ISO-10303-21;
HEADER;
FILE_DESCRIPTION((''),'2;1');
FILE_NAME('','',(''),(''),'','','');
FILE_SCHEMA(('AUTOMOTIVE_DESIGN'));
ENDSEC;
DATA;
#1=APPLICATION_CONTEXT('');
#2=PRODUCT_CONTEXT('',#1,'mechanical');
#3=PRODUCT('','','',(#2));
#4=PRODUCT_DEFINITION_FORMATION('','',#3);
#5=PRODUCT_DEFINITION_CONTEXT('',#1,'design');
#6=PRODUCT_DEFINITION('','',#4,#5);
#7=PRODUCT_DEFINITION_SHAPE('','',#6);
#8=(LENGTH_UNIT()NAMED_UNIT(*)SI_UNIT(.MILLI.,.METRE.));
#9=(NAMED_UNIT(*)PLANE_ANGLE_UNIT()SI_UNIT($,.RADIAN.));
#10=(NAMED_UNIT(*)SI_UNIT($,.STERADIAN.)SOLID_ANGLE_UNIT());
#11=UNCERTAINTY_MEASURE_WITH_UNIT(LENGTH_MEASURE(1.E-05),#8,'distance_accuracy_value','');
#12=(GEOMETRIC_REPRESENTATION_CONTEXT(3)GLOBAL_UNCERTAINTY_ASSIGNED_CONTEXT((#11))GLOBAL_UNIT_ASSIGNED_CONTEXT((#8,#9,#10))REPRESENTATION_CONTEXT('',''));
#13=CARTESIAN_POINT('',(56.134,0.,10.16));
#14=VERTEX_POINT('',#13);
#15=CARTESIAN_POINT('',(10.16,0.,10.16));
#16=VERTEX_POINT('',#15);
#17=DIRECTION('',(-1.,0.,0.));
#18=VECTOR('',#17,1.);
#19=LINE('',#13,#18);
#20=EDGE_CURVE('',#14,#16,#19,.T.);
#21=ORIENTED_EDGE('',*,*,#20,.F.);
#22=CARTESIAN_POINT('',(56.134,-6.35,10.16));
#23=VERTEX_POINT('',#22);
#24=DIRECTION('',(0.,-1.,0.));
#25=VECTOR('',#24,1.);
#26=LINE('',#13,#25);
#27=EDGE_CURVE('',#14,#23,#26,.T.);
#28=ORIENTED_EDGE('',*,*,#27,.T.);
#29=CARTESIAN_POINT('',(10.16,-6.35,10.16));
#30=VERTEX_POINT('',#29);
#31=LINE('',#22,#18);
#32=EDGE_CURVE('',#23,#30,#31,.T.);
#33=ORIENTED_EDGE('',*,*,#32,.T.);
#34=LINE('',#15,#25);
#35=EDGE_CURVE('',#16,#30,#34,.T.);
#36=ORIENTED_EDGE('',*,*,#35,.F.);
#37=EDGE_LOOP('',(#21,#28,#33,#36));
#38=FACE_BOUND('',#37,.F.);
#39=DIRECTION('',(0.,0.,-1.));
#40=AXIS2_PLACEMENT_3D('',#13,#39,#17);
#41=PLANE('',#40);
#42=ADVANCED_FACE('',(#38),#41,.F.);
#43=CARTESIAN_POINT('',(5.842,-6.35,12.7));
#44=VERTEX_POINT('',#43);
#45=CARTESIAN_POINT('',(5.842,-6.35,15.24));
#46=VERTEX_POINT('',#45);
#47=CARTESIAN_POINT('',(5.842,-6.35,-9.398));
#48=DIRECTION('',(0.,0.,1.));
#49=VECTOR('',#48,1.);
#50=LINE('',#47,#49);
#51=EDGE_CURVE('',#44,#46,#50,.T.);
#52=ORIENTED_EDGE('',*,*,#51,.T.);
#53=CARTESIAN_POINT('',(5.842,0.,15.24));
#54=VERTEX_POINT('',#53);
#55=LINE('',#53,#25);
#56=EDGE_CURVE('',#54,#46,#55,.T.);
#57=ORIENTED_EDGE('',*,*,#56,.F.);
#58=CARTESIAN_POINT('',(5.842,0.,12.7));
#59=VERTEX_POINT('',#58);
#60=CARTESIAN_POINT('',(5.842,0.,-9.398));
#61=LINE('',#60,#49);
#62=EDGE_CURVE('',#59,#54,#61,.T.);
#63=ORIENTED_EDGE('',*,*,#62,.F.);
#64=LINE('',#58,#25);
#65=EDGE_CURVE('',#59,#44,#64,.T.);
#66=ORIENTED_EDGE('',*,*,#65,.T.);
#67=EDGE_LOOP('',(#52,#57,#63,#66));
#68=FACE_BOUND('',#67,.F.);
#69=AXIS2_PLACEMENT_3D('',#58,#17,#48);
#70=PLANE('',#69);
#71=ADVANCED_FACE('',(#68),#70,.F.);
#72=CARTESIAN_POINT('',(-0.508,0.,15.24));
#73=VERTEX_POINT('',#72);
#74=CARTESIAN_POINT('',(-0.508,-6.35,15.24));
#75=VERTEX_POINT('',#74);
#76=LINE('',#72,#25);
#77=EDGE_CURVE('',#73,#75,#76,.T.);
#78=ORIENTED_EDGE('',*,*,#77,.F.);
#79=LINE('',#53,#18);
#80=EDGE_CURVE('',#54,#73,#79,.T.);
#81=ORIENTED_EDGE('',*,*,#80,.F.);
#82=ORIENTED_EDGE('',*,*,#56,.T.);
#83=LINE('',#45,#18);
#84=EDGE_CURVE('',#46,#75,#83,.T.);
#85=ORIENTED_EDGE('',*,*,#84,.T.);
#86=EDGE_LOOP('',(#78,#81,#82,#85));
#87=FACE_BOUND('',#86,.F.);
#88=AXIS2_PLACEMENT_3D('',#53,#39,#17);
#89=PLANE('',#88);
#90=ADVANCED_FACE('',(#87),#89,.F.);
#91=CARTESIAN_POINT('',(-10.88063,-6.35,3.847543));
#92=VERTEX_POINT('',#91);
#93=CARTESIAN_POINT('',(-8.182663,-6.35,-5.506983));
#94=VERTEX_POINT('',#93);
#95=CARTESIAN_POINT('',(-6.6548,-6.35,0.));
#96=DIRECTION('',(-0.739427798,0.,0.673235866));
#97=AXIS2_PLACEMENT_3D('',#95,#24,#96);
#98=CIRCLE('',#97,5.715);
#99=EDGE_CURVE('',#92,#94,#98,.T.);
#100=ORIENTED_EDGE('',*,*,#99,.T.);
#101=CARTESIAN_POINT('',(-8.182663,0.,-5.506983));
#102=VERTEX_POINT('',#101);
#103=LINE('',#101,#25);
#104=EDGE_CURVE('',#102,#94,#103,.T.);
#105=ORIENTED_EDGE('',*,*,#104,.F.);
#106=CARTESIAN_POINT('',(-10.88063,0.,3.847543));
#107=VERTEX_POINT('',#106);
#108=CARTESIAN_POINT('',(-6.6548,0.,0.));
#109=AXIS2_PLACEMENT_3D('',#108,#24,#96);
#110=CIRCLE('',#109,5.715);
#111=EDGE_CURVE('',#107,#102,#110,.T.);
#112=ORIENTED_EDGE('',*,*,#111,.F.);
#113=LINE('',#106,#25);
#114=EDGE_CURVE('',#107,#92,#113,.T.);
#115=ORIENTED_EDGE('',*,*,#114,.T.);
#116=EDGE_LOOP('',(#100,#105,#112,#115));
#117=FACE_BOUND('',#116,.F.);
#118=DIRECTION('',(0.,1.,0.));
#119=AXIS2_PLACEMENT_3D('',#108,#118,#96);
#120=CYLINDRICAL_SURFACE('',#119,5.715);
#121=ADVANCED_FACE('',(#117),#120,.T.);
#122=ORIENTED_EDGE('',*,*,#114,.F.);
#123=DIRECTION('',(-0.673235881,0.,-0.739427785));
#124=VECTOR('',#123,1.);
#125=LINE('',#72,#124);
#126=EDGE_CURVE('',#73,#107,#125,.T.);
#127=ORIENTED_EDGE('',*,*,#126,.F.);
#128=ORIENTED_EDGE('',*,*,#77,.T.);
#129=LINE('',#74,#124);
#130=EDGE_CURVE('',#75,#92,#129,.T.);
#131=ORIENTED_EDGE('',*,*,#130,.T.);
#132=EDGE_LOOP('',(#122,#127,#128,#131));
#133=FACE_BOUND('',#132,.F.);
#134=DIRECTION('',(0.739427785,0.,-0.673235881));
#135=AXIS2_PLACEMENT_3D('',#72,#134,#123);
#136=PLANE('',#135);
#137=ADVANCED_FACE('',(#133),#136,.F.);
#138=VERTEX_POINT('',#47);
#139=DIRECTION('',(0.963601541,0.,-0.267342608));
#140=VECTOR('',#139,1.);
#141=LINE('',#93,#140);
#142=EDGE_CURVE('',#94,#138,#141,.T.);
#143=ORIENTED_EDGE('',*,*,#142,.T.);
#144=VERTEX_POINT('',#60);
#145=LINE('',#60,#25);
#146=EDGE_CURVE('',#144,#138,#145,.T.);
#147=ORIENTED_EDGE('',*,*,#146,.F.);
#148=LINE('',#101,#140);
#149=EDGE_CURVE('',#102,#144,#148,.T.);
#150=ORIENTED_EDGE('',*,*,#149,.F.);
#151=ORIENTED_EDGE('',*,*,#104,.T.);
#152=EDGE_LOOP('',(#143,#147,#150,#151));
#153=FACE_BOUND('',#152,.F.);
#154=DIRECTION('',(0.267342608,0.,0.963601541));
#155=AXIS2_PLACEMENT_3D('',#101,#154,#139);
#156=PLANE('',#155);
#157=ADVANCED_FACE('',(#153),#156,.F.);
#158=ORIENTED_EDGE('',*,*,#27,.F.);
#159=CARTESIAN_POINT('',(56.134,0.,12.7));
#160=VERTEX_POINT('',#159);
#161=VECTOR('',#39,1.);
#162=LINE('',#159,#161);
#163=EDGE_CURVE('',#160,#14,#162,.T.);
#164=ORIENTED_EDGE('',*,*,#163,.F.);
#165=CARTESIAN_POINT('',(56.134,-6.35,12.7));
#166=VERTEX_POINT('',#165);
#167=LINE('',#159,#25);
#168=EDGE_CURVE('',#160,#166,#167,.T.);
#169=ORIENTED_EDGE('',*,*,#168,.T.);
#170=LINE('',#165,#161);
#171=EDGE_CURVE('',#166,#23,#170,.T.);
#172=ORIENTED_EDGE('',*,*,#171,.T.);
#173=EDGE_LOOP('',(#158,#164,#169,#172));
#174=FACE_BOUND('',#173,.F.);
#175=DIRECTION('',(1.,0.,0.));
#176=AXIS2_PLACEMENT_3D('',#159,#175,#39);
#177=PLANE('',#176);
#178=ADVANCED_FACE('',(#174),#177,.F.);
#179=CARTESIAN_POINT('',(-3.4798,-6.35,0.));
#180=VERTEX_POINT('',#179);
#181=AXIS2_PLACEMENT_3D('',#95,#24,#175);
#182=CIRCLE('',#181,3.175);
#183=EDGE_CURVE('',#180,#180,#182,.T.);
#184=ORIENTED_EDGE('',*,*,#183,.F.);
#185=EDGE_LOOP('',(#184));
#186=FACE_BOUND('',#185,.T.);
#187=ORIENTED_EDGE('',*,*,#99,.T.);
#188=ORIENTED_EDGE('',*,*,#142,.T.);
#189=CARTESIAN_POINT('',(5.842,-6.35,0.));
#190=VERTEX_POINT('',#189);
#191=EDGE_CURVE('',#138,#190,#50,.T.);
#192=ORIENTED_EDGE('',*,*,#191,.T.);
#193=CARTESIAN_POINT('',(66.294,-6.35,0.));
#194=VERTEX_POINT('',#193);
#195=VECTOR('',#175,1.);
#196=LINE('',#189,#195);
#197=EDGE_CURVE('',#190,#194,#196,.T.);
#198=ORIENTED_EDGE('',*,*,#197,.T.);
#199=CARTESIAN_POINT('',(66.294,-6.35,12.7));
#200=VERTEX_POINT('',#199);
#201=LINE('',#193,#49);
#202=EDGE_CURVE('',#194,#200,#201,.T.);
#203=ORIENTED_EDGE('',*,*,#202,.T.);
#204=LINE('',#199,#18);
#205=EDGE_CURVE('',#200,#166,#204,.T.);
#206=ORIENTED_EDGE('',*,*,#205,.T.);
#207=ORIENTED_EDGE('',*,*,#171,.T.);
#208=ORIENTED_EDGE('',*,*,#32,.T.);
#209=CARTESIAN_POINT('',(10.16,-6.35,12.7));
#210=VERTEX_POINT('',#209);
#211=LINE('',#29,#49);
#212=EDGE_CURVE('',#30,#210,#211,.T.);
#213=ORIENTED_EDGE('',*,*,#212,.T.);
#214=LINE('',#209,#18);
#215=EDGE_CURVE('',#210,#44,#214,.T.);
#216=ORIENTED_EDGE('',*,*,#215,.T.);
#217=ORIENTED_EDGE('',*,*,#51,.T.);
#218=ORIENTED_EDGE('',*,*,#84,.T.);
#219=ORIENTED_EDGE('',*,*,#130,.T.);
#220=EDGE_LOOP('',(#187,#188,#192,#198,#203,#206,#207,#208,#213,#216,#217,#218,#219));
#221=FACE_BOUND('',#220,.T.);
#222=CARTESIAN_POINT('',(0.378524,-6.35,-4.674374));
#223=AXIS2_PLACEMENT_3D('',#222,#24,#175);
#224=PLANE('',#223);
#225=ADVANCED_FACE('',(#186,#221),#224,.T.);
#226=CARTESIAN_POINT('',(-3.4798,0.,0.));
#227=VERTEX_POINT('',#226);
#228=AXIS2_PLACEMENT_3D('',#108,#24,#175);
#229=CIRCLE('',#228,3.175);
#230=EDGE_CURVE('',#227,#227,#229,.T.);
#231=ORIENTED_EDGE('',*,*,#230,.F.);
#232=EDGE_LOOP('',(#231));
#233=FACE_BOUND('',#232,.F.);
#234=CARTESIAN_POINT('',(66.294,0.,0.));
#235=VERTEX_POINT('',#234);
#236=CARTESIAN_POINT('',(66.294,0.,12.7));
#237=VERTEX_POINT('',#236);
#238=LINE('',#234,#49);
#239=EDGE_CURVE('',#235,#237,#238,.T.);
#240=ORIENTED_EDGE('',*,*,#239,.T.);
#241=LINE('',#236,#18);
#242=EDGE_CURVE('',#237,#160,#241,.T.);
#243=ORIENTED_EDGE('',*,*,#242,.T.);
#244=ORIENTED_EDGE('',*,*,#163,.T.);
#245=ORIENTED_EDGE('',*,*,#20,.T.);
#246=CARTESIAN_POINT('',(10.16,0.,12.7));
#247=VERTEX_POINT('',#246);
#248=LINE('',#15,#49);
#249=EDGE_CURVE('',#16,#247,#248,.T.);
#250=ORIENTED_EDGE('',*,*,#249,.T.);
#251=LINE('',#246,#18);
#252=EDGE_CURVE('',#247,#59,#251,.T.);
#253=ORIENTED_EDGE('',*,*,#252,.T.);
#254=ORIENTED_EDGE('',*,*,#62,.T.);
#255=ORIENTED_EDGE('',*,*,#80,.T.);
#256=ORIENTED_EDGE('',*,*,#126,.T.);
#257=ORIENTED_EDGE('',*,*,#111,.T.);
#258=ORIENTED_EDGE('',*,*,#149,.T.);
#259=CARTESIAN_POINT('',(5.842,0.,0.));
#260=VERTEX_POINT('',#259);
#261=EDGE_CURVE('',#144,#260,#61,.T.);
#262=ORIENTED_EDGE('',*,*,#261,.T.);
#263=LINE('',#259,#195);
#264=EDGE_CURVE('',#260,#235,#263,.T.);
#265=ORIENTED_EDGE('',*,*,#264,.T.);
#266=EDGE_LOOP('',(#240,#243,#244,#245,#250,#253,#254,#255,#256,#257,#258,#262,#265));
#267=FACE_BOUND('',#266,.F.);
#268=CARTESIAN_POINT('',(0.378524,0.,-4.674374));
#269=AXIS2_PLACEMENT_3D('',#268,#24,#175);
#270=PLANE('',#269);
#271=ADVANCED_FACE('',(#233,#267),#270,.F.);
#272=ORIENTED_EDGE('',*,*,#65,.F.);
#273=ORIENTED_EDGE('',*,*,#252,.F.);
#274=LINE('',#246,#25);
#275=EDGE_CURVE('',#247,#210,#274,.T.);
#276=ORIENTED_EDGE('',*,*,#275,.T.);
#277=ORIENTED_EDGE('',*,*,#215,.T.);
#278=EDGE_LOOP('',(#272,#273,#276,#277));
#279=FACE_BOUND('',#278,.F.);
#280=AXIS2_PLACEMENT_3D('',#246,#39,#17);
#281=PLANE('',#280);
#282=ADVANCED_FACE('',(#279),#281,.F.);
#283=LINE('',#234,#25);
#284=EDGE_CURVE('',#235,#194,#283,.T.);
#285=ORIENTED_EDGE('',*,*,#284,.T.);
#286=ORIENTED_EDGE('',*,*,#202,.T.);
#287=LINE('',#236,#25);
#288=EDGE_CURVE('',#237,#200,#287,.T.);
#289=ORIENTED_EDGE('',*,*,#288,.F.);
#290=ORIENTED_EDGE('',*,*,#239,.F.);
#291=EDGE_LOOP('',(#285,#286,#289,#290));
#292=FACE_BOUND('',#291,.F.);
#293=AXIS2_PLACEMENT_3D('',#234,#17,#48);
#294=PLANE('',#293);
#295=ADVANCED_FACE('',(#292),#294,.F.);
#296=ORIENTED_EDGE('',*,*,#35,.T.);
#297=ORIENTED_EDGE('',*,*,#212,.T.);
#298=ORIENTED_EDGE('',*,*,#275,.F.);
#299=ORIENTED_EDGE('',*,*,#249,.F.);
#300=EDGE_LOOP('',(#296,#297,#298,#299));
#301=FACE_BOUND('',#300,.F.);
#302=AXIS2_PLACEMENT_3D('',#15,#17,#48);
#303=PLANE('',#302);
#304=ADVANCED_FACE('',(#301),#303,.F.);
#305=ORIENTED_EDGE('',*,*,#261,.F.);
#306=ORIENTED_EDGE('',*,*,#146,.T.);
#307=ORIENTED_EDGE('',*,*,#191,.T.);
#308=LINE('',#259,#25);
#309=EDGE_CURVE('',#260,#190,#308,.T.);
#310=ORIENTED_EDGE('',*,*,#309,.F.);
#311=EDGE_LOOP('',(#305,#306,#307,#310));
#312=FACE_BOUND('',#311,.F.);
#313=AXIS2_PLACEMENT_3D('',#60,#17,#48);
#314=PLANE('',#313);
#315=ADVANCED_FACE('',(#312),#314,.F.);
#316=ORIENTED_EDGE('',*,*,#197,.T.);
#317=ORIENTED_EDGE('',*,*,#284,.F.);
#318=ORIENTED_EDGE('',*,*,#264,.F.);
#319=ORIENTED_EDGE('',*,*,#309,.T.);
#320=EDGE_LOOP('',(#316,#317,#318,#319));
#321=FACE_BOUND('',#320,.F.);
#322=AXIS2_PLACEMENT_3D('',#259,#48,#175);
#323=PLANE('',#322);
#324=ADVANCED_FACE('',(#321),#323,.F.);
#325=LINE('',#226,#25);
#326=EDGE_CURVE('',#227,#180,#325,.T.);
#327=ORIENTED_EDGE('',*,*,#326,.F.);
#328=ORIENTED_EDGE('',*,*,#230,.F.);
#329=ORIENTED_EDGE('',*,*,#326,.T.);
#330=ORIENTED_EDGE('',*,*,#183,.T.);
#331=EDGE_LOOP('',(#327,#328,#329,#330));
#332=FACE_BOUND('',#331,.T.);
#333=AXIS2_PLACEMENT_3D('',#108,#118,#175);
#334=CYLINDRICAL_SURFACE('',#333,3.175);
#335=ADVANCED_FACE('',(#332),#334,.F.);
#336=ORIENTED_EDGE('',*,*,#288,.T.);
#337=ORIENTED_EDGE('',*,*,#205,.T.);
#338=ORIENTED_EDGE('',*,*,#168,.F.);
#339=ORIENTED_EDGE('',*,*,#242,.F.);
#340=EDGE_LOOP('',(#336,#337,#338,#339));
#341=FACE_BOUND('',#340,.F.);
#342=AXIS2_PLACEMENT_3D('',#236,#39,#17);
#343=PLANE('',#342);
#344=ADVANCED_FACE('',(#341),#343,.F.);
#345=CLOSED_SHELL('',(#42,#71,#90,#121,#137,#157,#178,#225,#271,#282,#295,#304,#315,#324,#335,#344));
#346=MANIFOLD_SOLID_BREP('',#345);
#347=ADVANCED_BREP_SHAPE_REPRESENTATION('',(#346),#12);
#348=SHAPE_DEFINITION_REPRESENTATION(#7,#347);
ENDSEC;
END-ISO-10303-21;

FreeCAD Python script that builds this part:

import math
import FreeCAD as App
import Part
import Sketcher
from FreeCAD import Vector
Q = App.Units.Quantity

doc = App.newDocument("Part")
body = doc.addObject("PartDesign::Body", "Body")

# Sketch on XZ plane
sketch1 = body.newObject("Sketcher::SketchObject", "Sketch")
sketch1.AttachmentSupport = (doc.getObject("XZ_Plane"), [""])
sketch1.MapMode = "FlatFace"
sketch1.addGeometry(Part.LineSegment(Vector(5.8, 15.2, 0), Vector(-0.5, 15.2, 0)), False)
sketch1.addGeometry(Part.LineSegment(Vector(-0.5, 15.2, 0), Vector(-10.9, 3.8, 0)), False)
sketch1.addGeometry(Part.ArcOfCircle(Part.Circle(Vector(-6.7, 0, 0), Vector(0, 0, 1), 5.7), math.radians(138), math.radians(254)), False)
sketch1.addGeometry(Part.LineSegment(Vector(-8.2, -5.5, 0), Vector(5.8, -9.4, 0)), False)
sketch1.addGeometry(Part.LineSegment(Vector(5.8, -9.4, 0), Vector(5.8, 0, 0)), False)
sketch1.addGeometry(Part.LineSegment(Vector(5.8, 0, 0), Vector(66.3, 0, 0)), False)
sketch1.addGeometry(Part.LineSegment(Vector(66.3, 0, 0), Vector(66.3, 12.7, 0)), False)
sketch1.addGeometry(Part.LineSegment(Vector(66.3, 12.7, 0), Vector(56.1, 12.7, 0)), False)
sketch1.addGeometry(Part.LineSegment(Vector(56.1, 12.7, 0), Vector(56.1, 10.2, 0)), False)
sketch1.addGeometry(Part.LineSegment(Vector(56.1, 10.2, 0), Vector(10.2, 10.2, 0)), False)
sketch1.addGeometry(Part.LineSegment(Vector(10.2, 10.2, 0), Vector(10.2, 12.7, 0)), False)
sketch1.addGeometry(Part.LineSegment(Vector(10.2, 12.7, 0), Vector(5.8, 12.7, 0)), False)
sketch1.addGeometry(Part.LineSegment(Vector(5.8, 12.7, 0), Vector(5.8, 15.2, 0)), False)
sketch1.addGeometry(Part.Circle(Vector(-6.7, 0, 0), Vector(0, 0, 1), 3.2), False)
sketch1.addConstraint(Sketcher.Constraint("Coincident", 0, 2, 1, 1))
sketch1.addConstraint(Sketcher.Constraint("Tangent", 1, 2, 2, 1))
sketch1.addConstraint(Sketcher.Constraint("Tangent", 2, 2, 3, 1))
sketch1.addConstraint(Sketcher.Constraint("Coincident", 3, 2, 4, 1))
sketch1.addConstraint(Sketcher.Constraint("Coincident", 4, 2, 5, 1))
sketch1.addConstraint(Sketcher.Constraint("Coincident", 5, 2, 6, 1))
sketch1.addConstraint(Sketcher.Constraint("Coincident", 6, 2, 7, 1))
sketch1.addConstraint(Sketcher.Constraint("Coincident", 7, 2, 8, 1))
sketch1.addConstraint(Sketcher.Constraint("Coincident", 8, 2, 9, 1))
sketch1.addConstraint(Sketcher.Constraint("Coincident", 9, 2, 10, 1))
sketch1.addConstraint(Sketcher.Constraint("Coincident", 10, 2, 11, 1))
sketch1.addConstraint(Sketcher.Constraint("Coincident", 11, 2, 12, 1))
sketch1.addConstraint(Sketcher.Constraint("Coincident", 12, 2, 0, 1))
sketch1.addConstraint(Sketcher.Constraint("Horizontal", 0))
sketch1.addConstraint(Sketcher.Constraint("Vertical", 4))
sketch1.addConstraint(Sketcher.Constraint("Horizontal", 5))
sketch1.addConstraint(Sketcher.Constraint("Vertical", 6))
sketch1.addConstraint(Sketcher.Constraint("Horizontal", 7))
sketch1.addConstraint(Sketcher.Constraint("Vertical", 8))
sketch1.addConstraint(Sketcher.Constraint("Horizontal", 9))
sketch1.addConstraint(Sketcher.Constraint("Vertical", 10))
sketch1.addConstraint(Sketcher.Constraint("Horizontal", 11))
sketch1.addConstraint(Sketcher.Constraint("Vertical", 12))
sketch1.addConstraint(Sketcher.Constraint("Coincident", 13, 3, 2, 3))
sketch1.addConstraint(Sketcher.Constraint("PointOnObject", 2, 3, -1))
sketch1.addConstraint(Sketcher.Constraint("PointOnObject", 4, 2, -1))
sketch1.addConstraint(Sketcher.Constraint("Horizontal", 7, 2, 10, 2))
sketch1.addConstraint(Sketcher.Constraint("Vertical", 4, 2, 11, 2))
sketch1.addConstraint(Sketcher.Constraint("Equal", 10, 12))
sketch1.addConstraint(Sketcher.Constraint("Diameter", 13, Q("0.25 in")))
sketch1.addConstraint(Sketcher.Constraint("DistanceX", 7, 2, 7, 1, Q("0.4 in")))
sketch1.addConstraint(Sketcher.Constraint("DistanceY", 6, 1, 6, 2, Q("0.5 in")))
sketch1.addConstraint(Sketcher.Constraint("DistanceY", 8, 2, 8, 1, Q("0.1 in")))
sketch1.addConstraint(Sketcher.Constraint("Radius", 2, Q("0.225 in")))
sketch1.addConstraint(Sketcher.Constraint("DistanceX", 0, 2, 0, 1, Q("0.25 in")))
sketch1.addConstraint(Sketcher.Constraint("DistanceX", 5, 1, 5, 2, Q("2.38 in")))
sketch1.addConstraint(Sketcher.Constraint("DistanceX", 9, 2, 9, 1, Q("1.81 in")))
sketch1.addConstraint(Sketcher.Constraint("DistanceY", 4, 1, 4, 2, Q("0.37 in")))
sketch1.addConstraint(Sketcher.Constraint("DistanceX", -1, 1, 9, 2, Q("0.4 in")))
sketch1.addConstraint(Sketcher.Constraint("DistanceX", 2, 3, -1, 1, Q("0.262 in")))
pad1 = body.newObject("PartDesign::Pad", "Pad")
pad1.Profile = sketch1
pad1.Length = Q("0.25 in")

doc.recompute()
